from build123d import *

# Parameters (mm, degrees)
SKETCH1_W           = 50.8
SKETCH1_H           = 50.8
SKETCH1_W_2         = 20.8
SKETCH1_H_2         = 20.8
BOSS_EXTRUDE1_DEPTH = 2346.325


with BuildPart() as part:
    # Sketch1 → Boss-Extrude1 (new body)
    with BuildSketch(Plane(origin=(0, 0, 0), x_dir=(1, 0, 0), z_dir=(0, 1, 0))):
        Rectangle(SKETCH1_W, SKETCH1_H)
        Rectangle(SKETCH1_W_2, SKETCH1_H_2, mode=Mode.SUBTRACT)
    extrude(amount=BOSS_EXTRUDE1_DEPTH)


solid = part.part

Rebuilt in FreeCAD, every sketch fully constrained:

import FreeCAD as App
import Part
import Sketcher
from FreeCAD import Vector
Q = App.Units.Quantity

doc = App.newDocument("Part")
body = doc.addObject("PartDesign::Body", "Body")

# Sketch on XZ plane
sketch1 = body.newObject("Sketcher::SketchObject", "Sketch")
sketch1.AttachmentSupport = (doc.getObject("XZ_Plane"), [""])
sketch1.MapMode = "FlatFace"
sketch1.addGeometry([
    Part.LineSegment(Vector(-25.4, -25.4, 0), Vector(-25.4, 25.4, 0)),  # 0
    Part.LineSegment(Vector(-25.4, 25.4, 0), Vector(25.4, 25.4, 0)),  # 1
    Part.LineSegment(Vector(25.4, 25.4, 0), Vector(25.4, -25.4, 0)),  # 2
    Part.LineSegment(Vector(25.4, -25.4, 0), Vector(-25.4, -25.4, 0)),  # 3
    Part.LineSegment(Vector(10.4, 10.4, 0), Vector(-10.4, 10.4, 0)),  # 4
    Part.LineSegment(Vector(-10.4, 10.4, 0), Vector(-10.4, -10.4, 0)),  # 5
    Part.LineSegment(Vector(-10.4, -10.4, 0), Vector(10.4, -10.4, 0)),  # 6
    Part.LineSegment(Vector(10.4, -10.4, 0), Vector(10.4, 10.4, 0)),  # 7
], False)
sketch1.addConstraint([
    Sketcher.Constraint("Coincident", 0, 2, 1, 1),
    Sketcher.Constraint("Coincident", 1, 2, 2, 1),
    Sketcher.Constraint("Coincident", 2, 2, 3, 1),
    Sketcher.Constraint("Coincident", 3, 2, 0, 1),
    Sketcher.Constraint("Coincident", 4, 2, 5, 1),
    Sketcher.Constraint("Coincident", 5, 2, 6, 1),
    Sketcher.Constraint("Coincident", 6, 2, 7, 1),
    Sketcher.Constraint("Coincident", 7, 2, 4, 1),
    Sketcher.Constraint("Vertical", 0),
    Sketcher.Constraint("Horizontal", 1),
    Sketcher.Constraint("Vertical", 2),
    Sketcher.Constraint("Horizontal", 3),
    Sketcher.Constraint("Horizontal", 4),
    Sketcher.Constraint("Vertical", 5),
    Sketcher.Constraint("Horizontal", 6),
    Sketcher.Constraint("Vertical", 7),
    Sketcher.Constraint("Symmetric", 0, 2, 2, 2, -1, 1),
    Sketcher.Constraint("Symmetric", 4, 2, 6, 2, -1, 1),
    Sketcher.Constraint("Equal", 3, 0),
    Sketcher.Constraint("Equal", 6, 5),
    Sketcher.Constraint("DistanceX", 1, 1, 1, 2, Q("2 in")),
    Sketcher.Constraint("DistanceX", 4, 2, 4, 1, Q("20.8 mm")),
])
pad1 = body.newObject("PartDesign::Pad", "Pad")
pad1.Profile = sketch1
pad1.Length = Q("92.375 in")
pad1.Reversed = True

doc.recompute()
